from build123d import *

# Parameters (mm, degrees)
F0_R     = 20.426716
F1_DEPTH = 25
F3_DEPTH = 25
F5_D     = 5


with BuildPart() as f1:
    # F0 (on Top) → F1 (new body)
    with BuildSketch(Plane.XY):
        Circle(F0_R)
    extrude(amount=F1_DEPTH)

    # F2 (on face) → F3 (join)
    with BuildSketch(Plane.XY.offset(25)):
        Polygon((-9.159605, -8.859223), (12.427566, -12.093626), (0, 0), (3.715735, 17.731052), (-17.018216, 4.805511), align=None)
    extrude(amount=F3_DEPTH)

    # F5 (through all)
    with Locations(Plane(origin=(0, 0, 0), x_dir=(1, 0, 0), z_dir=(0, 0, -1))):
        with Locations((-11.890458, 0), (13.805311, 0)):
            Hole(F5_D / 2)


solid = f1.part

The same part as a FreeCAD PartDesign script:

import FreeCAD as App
import Part
import Sketcher
from FreeCAD import Vector
Q = App.Units.Quantity

doc = App.newDocument("Part")
body = doc.addObject("PartDesign::Body", "Body")

sketch1 = body.newObject("Sketcher::SketchObject", "Sketch")
sketch1.AttachmentSupport = (doc.getObject("XY_Plane"), [""])
sketch1.MapMode = "FlatFace"
sketch1.addGeometry(Part.Circle(Vector(0, 0, 0), Vector(0, 0, 1), 20), False)
sketch1.addConstraint([
    Sketcher.Constraint("Coincident", 0, 3, -1, 1),
    Sketcher.Constraint("Diameter", 0, Q("40.853432 mm")),
])
pad1 = body.newObject("PartDesign::Pad", "Pad")
pad1.Profile = sketch1
pad1.Length = 25

sketch2 = body.newObject("Sketcher::SketchObject", "Sketch001")
sketch2.AttachmentSupport = (doc.getObject("XY_Plane"), [""])
sketch2.MapMode = "FlatFace"
sketch2.AttachmentOffset = App.Placement(Vector(0, 0, 25), App.Rotation())
sketch2.addGeometry([
    Part.LineSegment(Vector(-9, -9, 0), Vector(12, -12, 0)),
    Part.LineSegment(Vector(12, -12, 0), Vector(0, 0, 0)),
    Part.LineSegment(Vector(0, 0, 0), Vector(4, 18, 0)),
    Part.LineSegment(Vector(4, 18, 0), Vector(-17, 5, 0)),
    Part.LineSegment(Vector(-17, 5, 0), Vector(-9, -9, 0)),
], False)
sketch2.addConstraint([
    Sketcher.Constraint("Coincident", 0, 2, 1, 1),
    Sketcher.Constraint("Coincident", 1, 2, 2, 1),
    Sketcher.Constraint("Coincident", 2, 2, 3, 1),
    Sketcher.Constraint("Coincident", 3, 2, 4, 1),
    Sketcher.Constraint("Coincident", 4, 2, 0, 1),
    Sketcher.Constraint("Coincident", 1, 2, -1, 1),
    Sketcher.Constraint("Distance", 0, Q("21.828131 mm")),
    Sketcher.Constraint("Distance", 1, Q("17.340709 mm")),
    Sketcher.Constraint("DistanceY", -1, 1, 2, 2, Q("17.731052 mm")),
    Sketcher.Constraint("DistanceY", -1, 1, 3, 2, Q("4.805511 mm")),
    Sketcher.Constraint("DistanceX", 2, 2, 0, 2, Q("8.711831 mm")),
    Sketcher.Constraint("DistanceX", 3, 2, 2, 2, Q("20.733951 mm")),
    Sketcher.Constraint("DistanceX", 3, 2, 4, 2, Q("7.858611 mm")),
    Sketcher.Constraint("Distance", 2, Q("18.116205 mm")),
])
pad2 = body.newObject("PartDesign::Pad", "Pad001")
pad2.Profile = sketch2
pad2.Length = 25

sketch3 = body.newObject("Sketcher::SketchObject", "Sketch002")
sketch3.AttachmentSupport = (doc.getObject("XY_Plane"), [""])
sketch3.MapMode = "FlatFace"
sketch3.addGeometry([
    Part.Circle(Vector(-11.9, 0, 0), Vector(0, 0, 1), 2.5),
    Part.Circle(Vector(13.8, 0, 0), Vector(0, 0, 1), 2.5),
], False)
sketch3.addConstraint([
    Sketcher.Constraint("Equal", 0, 1),
    Sketcher.Constraint("PointOnObject", 0, 3, -1),
    Sketcher.Constraint("PointOnObject", 1, 3, -1),
    Sketcher.Constraint("Diameter", 0, Q("5 mm")),
    Sketcher.Constraint("DistanceX", 0, 3, -1, 1, Q("11.890458 mm")),
    Sketcher.Constraint("DistanceX", -1, 1, 1, 3, Q("13.805311 mm")),
])
doc.recompute()
hole = body.newObject("PartDesign::Hole", "Hole")
hole.Profile = sketch3
hole.ThreadType = "None"
hole.Diameter = 5
hole.DepthType = "ThroughAll"
hole.Reversed = True

doc.recompute()
